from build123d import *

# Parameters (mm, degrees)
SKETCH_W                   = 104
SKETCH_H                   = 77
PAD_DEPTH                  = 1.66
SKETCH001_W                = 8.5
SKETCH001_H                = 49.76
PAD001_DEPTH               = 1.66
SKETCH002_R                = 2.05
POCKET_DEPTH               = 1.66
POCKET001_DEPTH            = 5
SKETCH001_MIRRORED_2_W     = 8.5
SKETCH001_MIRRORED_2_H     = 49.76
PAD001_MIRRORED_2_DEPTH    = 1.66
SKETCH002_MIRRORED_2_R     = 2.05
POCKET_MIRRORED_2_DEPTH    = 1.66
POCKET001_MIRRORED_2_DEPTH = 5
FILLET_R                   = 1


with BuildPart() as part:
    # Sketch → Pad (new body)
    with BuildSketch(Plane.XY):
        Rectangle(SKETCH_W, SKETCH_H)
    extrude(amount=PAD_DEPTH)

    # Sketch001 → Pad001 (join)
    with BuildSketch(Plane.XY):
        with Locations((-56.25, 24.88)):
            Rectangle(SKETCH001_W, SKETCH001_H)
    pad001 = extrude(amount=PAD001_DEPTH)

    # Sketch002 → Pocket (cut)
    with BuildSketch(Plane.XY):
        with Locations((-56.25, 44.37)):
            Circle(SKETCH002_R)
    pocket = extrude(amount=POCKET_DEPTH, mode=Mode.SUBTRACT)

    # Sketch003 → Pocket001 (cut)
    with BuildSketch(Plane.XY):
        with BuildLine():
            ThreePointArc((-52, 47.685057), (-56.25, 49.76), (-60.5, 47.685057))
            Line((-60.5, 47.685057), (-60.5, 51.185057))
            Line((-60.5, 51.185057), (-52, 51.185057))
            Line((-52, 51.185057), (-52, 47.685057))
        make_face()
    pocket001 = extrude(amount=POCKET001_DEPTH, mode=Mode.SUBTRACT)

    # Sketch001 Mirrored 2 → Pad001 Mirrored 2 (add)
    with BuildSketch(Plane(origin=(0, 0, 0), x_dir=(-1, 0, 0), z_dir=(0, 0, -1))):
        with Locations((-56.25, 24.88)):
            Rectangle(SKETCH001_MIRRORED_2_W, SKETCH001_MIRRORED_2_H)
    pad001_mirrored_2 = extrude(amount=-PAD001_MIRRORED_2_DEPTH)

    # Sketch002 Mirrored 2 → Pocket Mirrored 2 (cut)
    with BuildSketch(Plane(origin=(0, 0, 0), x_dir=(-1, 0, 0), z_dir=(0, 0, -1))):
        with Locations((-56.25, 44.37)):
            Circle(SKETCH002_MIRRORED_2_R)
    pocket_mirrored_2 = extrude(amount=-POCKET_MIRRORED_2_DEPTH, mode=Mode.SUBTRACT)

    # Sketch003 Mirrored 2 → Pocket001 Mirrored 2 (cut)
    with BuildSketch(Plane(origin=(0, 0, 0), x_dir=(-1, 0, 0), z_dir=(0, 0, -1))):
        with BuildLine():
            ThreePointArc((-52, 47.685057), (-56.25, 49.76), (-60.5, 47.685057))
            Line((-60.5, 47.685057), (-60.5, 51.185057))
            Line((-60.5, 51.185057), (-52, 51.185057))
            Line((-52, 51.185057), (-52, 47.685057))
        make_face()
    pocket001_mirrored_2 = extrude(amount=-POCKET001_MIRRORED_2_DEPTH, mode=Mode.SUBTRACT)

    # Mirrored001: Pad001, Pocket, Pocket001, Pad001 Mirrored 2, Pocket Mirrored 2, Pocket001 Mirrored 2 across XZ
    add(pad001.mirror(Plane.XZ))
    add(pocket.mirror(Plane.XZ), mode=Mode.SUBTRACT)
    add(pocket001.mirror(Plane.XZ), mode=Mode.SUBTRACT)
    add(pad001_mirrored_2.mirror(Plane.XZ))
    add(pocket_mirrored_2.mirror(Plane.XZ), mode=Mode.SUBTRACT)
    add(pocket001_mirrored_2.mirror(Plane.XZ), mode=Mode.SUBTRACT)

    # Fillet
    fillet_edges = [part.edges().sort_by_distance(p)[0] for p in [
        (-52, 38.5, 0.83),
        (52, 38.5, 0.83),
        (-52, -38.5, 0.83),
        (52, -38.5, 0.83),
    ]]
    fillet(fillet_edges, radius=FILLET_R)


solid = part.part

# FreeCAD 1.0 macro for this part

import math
import FreeCAD as App
import Part
import Sketcher
from FreeCAD import Vector
Q = App.Units.Quantity


def edges_at(feature, points):
    """Names of the edges that pass closest to the given points."""
    edges = feature.Shape.Edges
    near = lambda p: min(range(len(edges)), key=lambda i: edges[i].distToShape(Part.Vertex(*p))[0])
    return sorted({f"Edge{near(p) + 1}" for p in points})


def add_polygon(sketch, points):
    """Adds a closed chain of lines whose ends are joined by coincident constraints."""
    first, n = sketch.GeometryCount, len(points)
    for a, b in zip(points, points[1:] + points[:1]):
        sketch.addGeometry(Part.LineSegment(App.Vector(*a, 0), App.Vector(*b, 0)), False)
    for i in range(n):
        sketch.addConstraint(Sketcher.Constraint("Coincident", first + i, 2, first + (i + 1) % n, 1))

doc = App.newDocument("Part")
body = doc.addObject("PartDesign::Body", "Body")

# Sketch on XY plane
sketch1 = body.newObject("Sketcher::SketchObject", "Sketch")
sketch1.AttachmentSupport = (doc.getObject("XY_Plane"), [""])
sketch1.MapMode = "FlatFace"
add_polygon(sketch1, [(-52, 38), (-52, -38), (52, -38), (52, 38)])  # lines 0-3
sketch1.addConstraint(Sketcher.Constraint("Vertical", 0))
sketch1.addConstraint(Sketcher.Constraint("Horizontal", 1))
sketch1.addConstraint(Sketcher.Constraint("Vertical", 2))
sketch1.addConstraint(Sketcher.Constraint("Horizontal", 3))
sketch1.addConstraint(Sketcher.Constraint("Symmetric", 0, 2, 2, 2, -1, 1))
sketch1.addConstraint(Sketcher.Constraint("DistanceX", 1, 1, 1, 2, Q("104 mm")))
sketch1.addConstraint(Sketcher.Constraint("DistanceY", 0, 2, 0, 1, Q("77 mm")))
pad1 = body.newObject("PartDesign::Pad", "Pad")
pad1.Profile = sketch1
pad1.Length = 1.66

# Sketch on XY plane
sketch2 = body.newObject("Sketcher::SketchObject", "Sketch001")
sketch2.AttachmentSupport = (doc.getObject("XY_Plane"), [""])
sketch2.MapMode = "FlatFace"
add_polygon(sketch2, [(-60, 50), (-60, 0), (-52, 0), (-52, 50)])  # lines 0-3
sketch2.addConstraint(Sketcher.Constraint("Vertical", 0))
sketch2.addConstraint(Sketcher.Constraint("Horizontal", 1))
sketch2.addConstraint(Sketcher.Constraint("Vertical", 2))
sketch2.addConstraint(Sketcher.Constraint("Horizontal", 3))
sketch2.addConstraint(Sketcher.Constraint("PointOnObject", 0, 2, -1))
sketch2.addConstraint(Sketcher.Constraint("DistanceX", 1, 1, 1, 2, Q("8.5 mm")))
sketch2.addConstraint(Sketcher.Constraint("DistanceX", 1, 2, -1, 1, Q("52 mm")))
sketch2.addConstraint(Sketcher.Constraint("DistanceY", 0, 2, 0, 1, Q("49.76 mm")))
pad2 = body.newObject("PartDesign::Pad", "Pad001")
pad2.Profile = sketch2
pad2.Length = 1.66

# Sketch on XY plane
sketch3 = body.newObject("Sketcher::SketchObject", "Sketch002")
sketch3.AttachmentSupport = (doc.getObject("XY_Plane"), [""])
sketch3.MapMode = "FlatFace"
sketch3.addGeometry(Part.Circle(Vector(-56.2, 44.4, 0), Vector(0, 0, 1), 2), False)
sketch3.addConstraint(Sketcher.Constraint("Diameter", 0, Q("4.1 mm")))
sketch3.addConstraint(Sketcher.Constraint("DistanceX", 0, 3, -1, 1, Q("56.25 mm")))
sketch3.addConstraint(Sketcher.Constraint("DistanceY", -1, 1, 0, 3, Q("44.37 mm")))
pocket1 = body.newObject("PartDesign::Pocket", "Pocket")
pocket1.Profile = sketch3
pocket1.Length = 1.66
pocket1.Reversed = True

# Sketch on XY plane
sketch4 = body.newObject("Sketcher::SketchObject", "Sketch003")
sketch4.AttachmentSupport = (doc.getObject("XY_Plane"), [""])
sketch4.MapMode = "FlatFace"
sketch4.addGeometry(Part.ArcOfCircle(Part.Circle(Vector(-56.2, 44.4, 0), Vector(0, 0, 1), 5.4), math.radians(38), math.radians(142)), False)
sketch4.addGeometry(Part.LineSegment(Vector(-52, 47.7, 0), Vector(-52, 51.2, 0)), False)
sketch4.addGeometry(Part.LineSegment(Vector(-52, 51.2, 0), Vector(-60.5, 51.2, 0)), False)
sketch4.addGeometry(Part.LineSegment(Vector(-60.5, 51.2, 0), Vector(-60.5, 47.7, 0)), False)
sketch4.addConstraint(Sketcher.Constraint("Coincident", 0, 1, 1, 1))
sketch4.addConstraint(Sketcher.Constraint("Coincident", 1, 2, 2, 1))
sketch4.addConstraint(Sketcher.Constraint("Coincident", 2, 2, 3, 1))
sketch4.addConstraint(Sketcher.Constraint("Coincident", 3, 2, 0, 2))
sketch4.addConstraint(Sketcher.Constraint("Vertical", 1))
sketch4.addConstraint(Sketcher.Constraint("Horizontal", 2))
sketch4.addConstraint(Sketcher.Constraint("Vertical", 3))
sketch4.addConstraint(Sketcher.Constraint("Horizontal", 0, 1, 3, 2))
sketch4.addConstraint(Sketcher.Constraint("Radius", 0, Q("5.390001 mm")))
sketch4.addConstraint(Sketcher.Constraint("DistanceX", 2, 2, 2, 1, Q("8.5 mm")))
sketch4.addConstraint(Sketcher.Constraint("DistanceY", 1, 1, 1, 2, Q("3.5 mm")))
sketch4.addConstraint(Sketcher.Constraint("DistanceX", 0, 1, -1, 1, Q("52 mm")))
sketch4.addConstraint(Sketcher.Constraint("DistanceY", -1, 1, 0, 3, Q("44.369999 mm")))
pocket2 = body.newObject("PartDesign::Pocket", "Pocket001")
pocket2.Profile = sketch4
pocket2.Length = 5
pocket2.Reversed = True

# Sketch on XY plane
sketch5 = body.newObject("Sketcher::SketchObject", "Sketch004")
sketch5.AttachmentSupport = (doc.getObject("XY_Plane"), [""])
sketch5.MapMode = "FlatFace"
add_polygon(sketch5, [(60, 50), (60, 0), (52, 0), (52, 50)])  # lines 0-3
sketch5.addConstraint(Sketcher.Constraint("Vertical", 0))
sketch5.addConstraint(Sketcher.Constraint("Horizontal", 1))
sketch5.addConstraint(Sketcher.Constraint("Vertical", 2))
sketch5.addConstraint(Sketcher.Constraint("Horizontal", 3))
sketch5.addConstraint(Sketcher.Constraint("PointOnObject", 0, 2, -1))
sketch5.addConstraint(Sketcher.Constraint("DistanceX", 1, 2, 1, 1, Q("8.5 mm")))
sketch5.addConstraint(Sketcher.Constraint("DistanceX", -1, 1, 1, 2, Q("52 mm")))
sketch5.addConstraint(Sketcher.Constraint("DistanceY", 0, 2, 0, 1, Q("49.76 mm")))
pad3 = body.newObject("PartDesign::Pad", "Pad002")
pad3.Profile = sketch5
pad3.Length = 1.66

# Sketch on XY plane
sketch6 = body.newObject("Sketcher::SketchObject", "Sketch005")
sketch6.AttachmentSupport = (doc.getObject("XY_Plane"), [""])
sketch6.MapMode = "FlatFace"
sketch6.addGeometry(Part.Circle(Vector(56.2, 44.4, 0), Vector(0, 0, 1), 2), False)
sketch6.addConstraint(Sketcher.Constraint("Diameter", 0, Q("4.1 mm")))
sketch6.addConstraint(Sketcher.Constraint("DistanceX", -1, 1, 0, 3, Q("56.25 mm")))
sketch6.addConstraint(Sketcher.Constraint("DistanceY", -1, 1, 0, 3, Q("44.37 mm")))
pocket3 = body.newObject("PartDesign::Pocket", "Pocket002")
pocket3.Profile = sketch6
pocket3.Length = 1.66
pocket3.Reversed = True

# Sketch on XY plane
sketch7 = body.newObject("Sketcher::SketchObject", "Sketch006")
sketch7.AttachmentSupport = (doc.getObject("XY_Plane"), [""])
sketch7.MapMode = "FlatFace"
sketch7.addGeometry(Part.ArcOfCircle(Part.Circle(Vector(56.2, 44.4, 0), Vector(0, 0, 1), 5.4), math.radians(38), math.radians(142)), False)
sketch7.addGeometry(Part.LineSegment(Vector(52, 47.7, 0), Vector(52, 51.2, 0)), False)
sketch7.addGeometry(Part.LineSegment(Vector(52, 51.2, 0), Vector(60.5, 51.2, 0)), False)
sketch7.addGeometry(Part.LineSegment(Vector(60.5, 51.2, 0), Vector(60.5, 47.7, 0)), False)
sketch7.addConstraint(Sketcher.Constraint("Coincident", 0, 2, 1, 1))
sketch7.addConstraint(Sketcher.Constraint("Coincident", 1, 2, 2, 1))
sketch7.addConstraint(Sketcher.Constraint("Coincident", 2, 2, 3, 1))
sketch7.addConstraint(Sketcher.Constraint("Coincident", 3, 2, 0, 1))
sketch7.addConstraint(Sketcher.Constraint("Vertical", 1))
sketch7.addConstraint(Sketcher.Constraint("Horizontal", 2))
sketch7.addConstraint(Sketcher.Constraint("Vertical", 3))
sketch7.addConstraint(Sketcher.Constraint("Horizontal", 0, 2, 3, 2))
sketch7.addConstraint(Sketcher.Constraint("Radius", 0, Q("5.390001 mm")))
sketch7.addConstraint(Sketcher.Constraint("DistanceX", 2, 1, 2, 2, Q("8.5 mm")))
sketch7.addConstraint(Sketcher.Constraint("DistanceY", 1, 1, 1, 2, Q("3.5 mm")))
sketch7.addConstraint(Sketcher.Constraint("DistanceX", -1, 1, 0, 2, Q("52 mm")))
sketch7.addConstraint(Sketcher.Constraint("DistanceY", -1, 1, 0, 3, Q("44.369999 mm")))
pocket4 = body.newObject("PartDesign::Pocket", "Pocket003")
pocket4.Profile = sketch7
pocket4.Length = 5
pocket4.Reversed = True
doc.recompute()

mirrored = body.newObject("PartDesign::Mirrored", "Mirrored")
mirrored.Originals = [pad2, pocket1, pocket2, pad3, pocket3, pocket4]
mirrored.MirrorPlane = (doc.getObject("XZ_Plane"), [""])
body.Tip = mirrored
doc.recompute()

fillet = body.newObject("PartDesign::Fillet", "Fillet")
fillet.Base = (mirrored, edges_at(mirrored, [
    (-52, 38.5, 0.83),
    (52, 38.5, 0.83),
    (-52, -38.5, 0.83),
    (52, -38.5, 0.83),
]))
fillet.Radius = 1

doc.recompute()
